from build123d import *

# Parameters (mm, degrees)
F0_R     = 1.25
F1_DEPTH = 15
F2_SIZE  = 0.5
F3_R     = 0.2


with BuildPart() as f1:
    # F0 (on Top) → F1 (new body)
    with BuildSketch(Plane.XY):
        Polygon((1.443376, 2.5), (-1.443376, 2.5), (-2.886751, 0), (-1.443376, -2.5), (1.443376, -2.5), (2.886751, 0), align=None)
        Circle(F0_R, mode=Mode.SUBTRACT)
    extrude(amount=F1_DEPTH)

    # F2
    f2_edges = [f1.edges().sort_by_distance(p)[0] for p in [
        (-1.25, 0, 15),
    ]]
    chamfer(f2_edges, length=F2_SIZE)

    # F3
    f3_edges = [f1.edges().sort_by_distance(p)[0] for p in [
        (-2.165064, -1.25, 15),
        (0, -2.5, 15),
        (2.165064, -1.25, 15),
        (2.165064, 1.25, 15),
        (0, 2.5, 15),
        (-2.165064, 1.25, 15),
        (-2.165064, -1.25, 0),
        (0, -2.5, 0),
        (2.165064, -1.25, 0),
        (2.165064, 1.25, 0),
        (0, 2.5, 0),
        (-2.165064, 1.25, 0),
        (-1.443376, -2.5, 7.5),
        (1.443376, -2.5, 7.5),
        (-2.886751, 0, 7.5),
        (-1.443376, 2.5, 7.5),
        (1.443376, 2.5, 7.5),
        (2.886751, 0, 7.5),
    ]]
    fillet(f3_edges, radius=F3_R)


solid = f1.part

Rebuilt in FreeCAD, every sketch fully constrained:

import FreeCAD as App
import Part
import Sketcher
from FreeCAD import Vector
Q = App.Units.Quantity


def edges_at(feature, points):
    """Names of the edges that pass closest to the given points."""
    edges = feature.Shape.Edges
    near = lambda p: min(range(len(edges)), key=lambda i: edges[i].distToShape(Part.Vertex(*p))[0])
    return sorted({f"Edge{near(p) + 1}" for p in points})

doc = App.newDocument("Part")
body = doc.addObject("PartDesign::Body", "Body")

# Sketch on XY plane
sketch1 = body.newObject("Sketcher::SketchObject", "Sketch")
sketch1.AttachmentSupport = (doc.getObject("XY_Plane"), [""])
sketch1.MapMode = "FlatFace"
sketch1.addGeometry(Part.LineSegment(Vector(1.443376, 2.5, 0), Vector(-1.443376, 2.5, 0)), False)
sketch1.addGeometry(Part.LineSegment(Vector(-1.443376, 2.5, 0), Vector(-2.886751, 0, 0)), False)
sketch1.addGeometry(Part.LineSegment(Vector(-2.886751, 0, 0), Vector(-1.443376, -2.5, 0)), False)
sketch1.addGeometry(Part.LineSegment(Vector(-1.443376, -2.5, 0), Vector(1.443376, -2.5, 0)), False)
sketch1.addGeometry(Part.LineSegment(Vector(1.443376, -2.5, 0), Vector(2.886751, 0, 0)), False)
sketch1.addGeometry(Part.LineSegment(Vector(2.886751, 0, 0), Vector(1.443376, 2.5, 0)), False)
sketch1.addGeometry(Part.Circle(Vector(0, 0, 0), Vector(0, 0, 1), 1.25), False)
sketch1.addConstraint(Sketcher.Constraint("Coincident", 0, 2, 1, 1))
sketch1.addConstraint(Sketcher.Constraint("Coincident", 1, 2, 2, 1))
sketch1.addConstraint(Sketcher.Constraint("Coincident", 2, 2, 3, 1))
sketch1.addConstraint(Sketcher.Constraint("Coincident", 3, 2, 4, 1))
sketch1.addConstraint(Sketcher.Constraint("Coincident", 4, 2, 5, 1))
sketch1.addConstraint(Sketcher.Constraint("Coincident", 5, 2, 0, 1))
sketch1.addConstraint(Sketcher.Constraint("Horizontal", 0))
sketch1.addConstraint(Sketcher.Constraint("Horizontal", 3))
sketch1.addConstraint(Sketcher.Constraint("Coincident", 6, 3, -1, 1))
sketch1.addConstraint(Sketcher.Constraint("Symmetric", 0, 2, 3, 2, -1, 1))
sketch1.addConstraint(Sketcher.Constraint("Symmetric", 1, 2, 4, 2, -1, 1))
sketch1.addConstraint(Sketcher.Constraint("PointOnObject", 1, 2, -1))
sketch1.addConstraint(Sketcher.Constraint("Parallel", 2, 5))
sketch1.addConstraint(Sketcher.Constraint("Vertical", 0, 2, 2, 2))
sketch1.addConstraint(Sketcher.Constraint("Diameter", 6, Q("2.5 mm")))
sketch1.addConstraint(Sketcher.Constraint("Angle", 1, Q("-119.999988 deg")))
sketch1.addConstraint(Sketcher.Constraint("DistanceY", 2, 2, 0, 2, Q("5 mm")))
sketch1.addConstraint(Sketcher.Constraint("DistanceX", 0, 2, 0, 1, Q("2.886752 mm")))
pad1 = body.newObject("PartDesign::Pad", "Pad")
pad1.Profile = sketch1
pad1.Length = 15
doc.recompute()

chamfer = body.newObject("PartDesign::Chamfer", "Chamfer")
chamfer.Base = (pad1, edges_at(pad1, [(-1.25, 0, 15)]))
chamfer.Size = 0.5
doc.recompute()

fillet = body.newObject("PartDesign::Fillet", "Fillet")
fillet.Base = (chamfer, edges_at(chamfer, [
    (-2.165, -1.25, 15),
    (0, -2.5, 15),
    (2.165, -1.25, 15),
    (2.165, 1.25, 15),
    (0, 2.5, 15),
    (-2.165, 1.25, 15),
    (-2.165, -1.25, 0),
    (0, -2.5, 0),
    (2.165, -1.25, 0),
    (2.165, 1.25, 0),
    (0, 2.5, 0),
    (-2.165, 1.25, 0),
    (-1.443, -2.5, 7.5),
    (1.443, -2.5, 7.5),
    (-2.887, 0, 7.5),
    (-1.443, 2.5, 7.5),
    (1.443, 2.5, 7.5),
    (2.887, 0, 7.5),
]))
fillet.Radius = 0.2

doc.recompute()
